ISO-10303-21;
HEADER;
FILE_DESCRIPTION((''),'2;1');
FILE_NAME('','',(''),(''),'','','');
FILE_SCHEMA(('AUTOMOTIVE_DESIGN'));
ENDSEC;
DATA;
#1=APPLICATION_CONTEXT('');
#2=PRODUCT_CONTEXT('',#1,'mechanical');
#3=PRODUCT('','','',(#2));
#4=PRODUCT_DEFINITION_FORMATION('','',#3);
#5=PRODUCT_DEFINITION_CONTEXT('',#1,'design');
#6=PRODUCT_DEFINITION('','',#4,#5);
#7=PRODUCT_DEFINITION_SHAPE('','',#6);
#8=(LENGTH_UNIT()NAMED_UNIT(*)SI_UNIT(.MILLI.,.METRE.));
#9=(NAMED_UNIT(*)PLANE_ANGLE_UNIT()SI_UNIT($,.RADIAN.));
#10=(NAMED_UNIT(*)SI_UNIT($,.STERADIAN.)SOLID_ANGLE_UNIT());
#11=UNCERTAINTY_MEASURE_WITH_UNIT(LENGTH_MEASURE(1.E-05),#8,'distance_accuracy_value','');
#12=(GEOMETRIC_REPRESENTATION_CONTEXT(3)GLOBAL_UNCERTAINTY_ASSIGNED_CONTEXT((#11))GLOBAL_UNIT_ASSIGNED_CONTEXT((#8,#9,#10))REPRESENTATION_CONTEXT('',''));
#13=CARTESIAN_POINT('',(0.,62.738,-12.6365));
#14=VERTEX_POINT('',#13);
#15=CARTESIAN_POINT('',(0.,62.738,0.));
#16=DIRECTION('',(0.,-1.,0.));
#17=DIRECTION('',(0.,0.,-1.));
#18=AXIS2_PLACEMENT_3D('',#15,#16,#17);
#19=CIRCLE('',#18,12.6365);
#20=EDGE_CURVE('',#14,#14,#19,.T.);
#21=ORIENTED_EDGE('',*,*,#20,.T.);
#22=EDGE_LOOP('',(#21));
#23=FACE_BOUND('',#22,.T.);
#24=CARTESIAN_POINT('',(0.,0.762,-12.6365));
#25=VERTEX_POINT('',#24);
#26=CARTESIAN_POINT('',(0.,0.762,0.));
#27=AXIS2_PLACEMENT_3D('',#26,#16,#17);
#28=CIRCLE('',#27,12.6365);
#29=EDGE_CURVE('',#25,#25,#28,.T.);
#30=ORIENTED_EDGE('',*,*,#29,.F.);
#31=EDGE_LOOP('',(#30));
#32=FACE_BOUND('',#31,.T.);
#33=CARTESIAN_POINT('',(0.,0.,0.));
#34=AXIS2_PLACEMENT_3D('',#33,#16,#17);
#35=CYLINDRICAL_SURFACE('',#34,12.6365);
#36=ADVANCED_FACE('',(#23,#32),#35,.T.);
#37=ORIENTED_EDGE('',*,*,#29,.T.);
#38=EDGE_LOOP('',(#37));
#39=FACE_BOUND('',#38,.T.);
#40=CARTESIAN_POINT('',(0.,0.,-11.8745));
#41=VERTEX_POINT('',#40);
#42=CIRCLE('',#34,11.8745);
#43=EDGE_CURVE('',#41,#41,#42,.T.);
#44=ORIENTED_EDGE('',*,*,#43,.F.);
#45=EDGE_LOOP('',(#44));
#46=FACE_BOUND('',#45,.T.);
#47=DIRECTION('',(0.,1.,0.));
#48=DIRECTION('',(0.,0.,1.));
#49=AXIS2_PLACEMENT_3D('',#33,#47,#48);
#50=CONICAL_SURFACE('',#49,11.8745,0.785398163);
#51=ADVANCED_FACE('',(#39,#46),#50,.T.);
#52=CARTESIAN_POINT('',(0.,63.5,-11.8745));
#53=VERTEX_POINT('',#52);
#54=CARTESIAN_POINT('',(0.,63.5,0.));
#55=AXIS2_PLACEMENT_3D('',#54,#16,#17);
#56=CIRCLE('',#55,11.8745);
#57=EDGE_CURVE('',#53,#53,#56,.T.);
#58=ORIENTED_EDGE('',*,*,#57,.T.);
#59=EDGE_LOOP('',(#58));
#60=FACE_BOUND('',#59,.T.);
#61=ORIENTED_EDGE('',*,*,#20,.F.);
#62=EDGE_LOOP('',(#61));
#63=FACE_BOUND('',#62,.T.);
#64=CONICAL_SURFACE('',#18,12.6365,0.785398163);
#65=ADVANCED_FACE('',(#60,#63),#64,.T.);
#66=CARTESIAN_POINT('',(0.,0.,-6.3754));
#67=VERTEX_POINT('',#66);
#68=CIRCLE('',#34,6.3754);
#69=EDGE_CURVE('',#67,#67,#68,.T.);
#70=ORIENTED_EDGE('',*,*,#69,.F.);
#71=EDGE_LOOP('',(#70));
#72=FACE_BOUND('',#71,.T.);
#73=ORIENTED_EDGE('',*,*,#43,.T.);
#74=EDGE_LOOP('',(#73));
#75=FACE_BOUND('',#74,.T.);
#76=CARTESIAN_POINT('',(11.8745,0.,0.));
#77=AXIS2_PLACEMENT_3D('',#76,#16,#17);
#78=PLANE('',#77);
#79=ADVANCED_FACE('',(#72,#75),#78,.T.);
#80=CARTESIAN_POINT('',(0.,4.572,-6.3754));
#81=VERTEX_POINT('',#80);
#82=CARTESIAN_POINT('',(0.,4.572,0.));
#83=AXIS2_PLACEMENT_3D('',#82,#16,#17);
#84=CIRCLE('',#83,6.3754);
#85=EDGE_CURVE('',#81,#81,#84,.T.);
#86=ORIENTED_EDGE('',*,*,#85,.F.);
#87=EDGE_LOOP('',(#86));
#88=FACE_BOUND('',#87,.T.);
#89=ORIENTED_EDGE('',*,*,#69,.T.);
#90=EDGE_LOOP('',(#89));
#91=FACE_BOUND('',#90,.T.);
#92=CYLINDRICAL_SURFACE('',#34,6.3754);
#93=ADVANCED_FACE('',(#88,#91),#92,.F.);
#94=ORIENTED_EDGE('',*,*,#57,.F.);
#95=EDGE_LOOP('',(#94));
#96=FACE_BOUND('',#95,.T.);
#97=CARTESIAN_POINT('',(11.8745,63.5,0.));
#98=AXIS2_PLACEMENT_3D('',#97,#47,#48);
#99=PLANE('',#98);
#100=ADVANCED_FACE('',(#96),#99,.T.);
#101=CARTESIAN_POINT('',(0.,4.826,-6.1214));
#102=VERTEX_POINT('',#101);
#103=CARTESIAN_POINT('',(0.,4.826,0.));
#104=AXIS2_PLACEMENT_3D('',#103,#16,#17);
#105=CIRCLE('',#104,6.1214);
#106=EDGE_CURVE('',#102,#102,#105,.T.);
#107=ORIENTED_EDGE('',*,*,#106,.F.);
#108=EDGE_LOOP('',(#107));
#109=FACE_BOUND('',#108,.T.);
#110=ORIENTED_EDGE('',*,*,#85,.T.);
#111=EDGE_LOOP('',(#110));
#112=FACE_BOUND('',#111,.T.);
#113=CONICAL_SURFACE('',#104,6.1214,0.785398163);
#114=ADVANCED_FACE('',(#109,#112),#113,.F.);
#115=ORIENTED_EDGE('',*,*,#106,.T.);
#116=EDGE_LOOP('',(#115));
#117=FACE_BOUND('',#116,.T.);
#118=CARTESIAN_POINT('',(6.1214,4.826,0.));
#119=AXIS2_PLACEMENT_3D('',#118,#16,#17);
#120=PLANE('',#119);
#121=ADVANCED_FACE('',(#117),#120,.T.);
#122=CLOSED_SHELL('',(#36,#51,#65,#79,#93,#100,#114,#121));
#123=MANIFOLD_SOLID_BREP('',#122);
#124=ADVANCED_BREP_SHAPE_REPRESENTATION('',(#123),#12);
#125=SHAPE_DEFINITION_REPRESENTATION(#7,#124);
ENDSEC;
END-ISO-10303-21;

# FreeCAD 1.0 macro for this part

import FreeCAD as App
import Part
import Sketcher
Q = App.Units.Quantity


def add_polygon(sketch, points):
    """Adds a closed chain of lines whose ends are joined by coincident constraints."""
    first, n = sketch.GeometryCount, len(points)
    for a, b in zip(points, points[1:] + points[:1]):
        sketch.addGeometry(Part.LineSegment(App.Vector(*a, 0), App.Vector(*b, 0)), False)
    for i in range(n):
        sketch.addConstraint(Sketcher.Constraint("Coincident", first + i, 2, first + (i + 1) % n, 1))

doc = App.newDocument("Part")
body = doc.addObject("PartDesign::Body", "Body")

sketch1 = body.newObject("Sketcher::SketchObject", "Sketch")
sketch1.AttachmentSupport = (doc.getObject("XY_Plane"), [""])
sketch1.MapMode = "FlatFace"
add_polygon(sketch1, [(12.64, 0.76), (12.64, 62.74), (11.87, 63.5), (0, 63.5), (0, 4.83), (6.12, 4.83), (6.38, 4.57), (6.38, 0), (11.87, 0)])
sketch1.addConstraint(Sketcher.Constraint("Vertical", 0))
sketch1.addConstraint(Sketcher.Constraint("Horizontal", 2))
sketch1.addConstraint(Sketcher.Constraint("Vertical", 3))
sketch1.addConstraint(Sketcher.Constraint("Horizontal", 4))
sketch1.addConstraint(Sketcher.Constraint("Vertical", 6))
sketch1.addConstraint(Sketcher.Constraint("Horizontal", 7))
sketch1.addConstraint(Sketcher.Constraint("PointOnObject", 2, 2, -2))
sketch1.addConstraint(Sketcher.Constraint("PointOnObject", 6, 2, -1))
sketch1.addConstraint(Sketcher.Constraint("Parallel", 1, 5))
sketch1.addConstraint(Sketcher.Constraint("Perpendicular", 5, 8))
sketch1.addConstraint(Sketcher.Constraint("Vertical", 1, 2, 7, 2))
sketch1.addConstraint(Sketcher.Constraint("Equal", 1, 8))
sketch1.addConstraint(Sketcher.Constraint("DistanceY", 0, 1, 0, 2, Q("2.44 in")))
sketch1.addConstraint(Sketcher.Constraint("DistanceY", 3, 2, 3, 1, Q("2.31 in")))
sketch1.addConstraint(Sketcher.Constraint("DistanceY", 6, 2, 6, 1, Q("0.18 in")))
sketch1.addConstraint(Sketcher.Constraint("DistanceY", -1, 1, 1, 2, Q("2.5 in")))
sketch1.addConstraint(Sketcher.Constraint("DistanceX", 4, 1, 4, 2, Q("0.241 in")))
sketch1.addConstraint(Sketcher.Constraint("DistanceX", 2, 2, 2, 1, Q("0.4675 in")))
revolution = body.newObject("PartDesign::Revolution", "Revolution")
revolution.Profile = sketch1
revolution.ReferenceAxis = (sketch1, ["V_Axis"])
revolution.Angle = 360

doc.recompute()
